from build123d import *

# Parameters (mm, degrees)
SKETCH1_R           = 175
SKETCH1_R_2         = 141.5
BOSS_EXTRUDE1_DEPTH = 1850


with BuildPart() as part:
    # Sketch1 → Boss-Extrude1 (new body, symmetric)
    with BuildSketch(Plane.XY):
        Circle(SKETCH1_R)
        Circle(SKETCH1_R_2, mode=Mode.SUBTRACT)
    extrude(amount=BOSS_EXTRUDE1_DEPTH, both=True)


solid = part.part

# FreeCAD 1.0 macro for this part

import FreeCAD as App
import Part
import Sketcher

V = App.Vector

doc = App.newDocument("Part")
body = doc.addObject("PartDesign::Body", "Body")

sketch1 = body.newObject("Sketcher::SketchObject", "Sketch")
sketch1.AttachmentSupport = (doc.getObject("XY_Plane"), [""])
sketch1.MapMode = "FlatFace"
sketch1.addGeometry([
    Part.Circle(V(0, 0, 0), V(0, 0, 1), 175),
    Part.Circle(V(0, 0, 0), V(0, 0, 1), 142),
], False)
sketch1.addConstraint([
    Sketcher.Constraint("Coincident", 0, 3, -1, 1),
    Sketcher.Constraint("Coincident", 1, 3, -1, 1),
    Sketcher.Constraint("Diameter", 0, 350.0),
    Sketcher.Constraint("Diameter", 1, 283.0),
])
pad1 = body.newObject("PartDesign::Pad", "Pad")
pad1.Profile = sketch1
pad1.Length = 3700
pad1.Midplane = True

doc.recompute()
